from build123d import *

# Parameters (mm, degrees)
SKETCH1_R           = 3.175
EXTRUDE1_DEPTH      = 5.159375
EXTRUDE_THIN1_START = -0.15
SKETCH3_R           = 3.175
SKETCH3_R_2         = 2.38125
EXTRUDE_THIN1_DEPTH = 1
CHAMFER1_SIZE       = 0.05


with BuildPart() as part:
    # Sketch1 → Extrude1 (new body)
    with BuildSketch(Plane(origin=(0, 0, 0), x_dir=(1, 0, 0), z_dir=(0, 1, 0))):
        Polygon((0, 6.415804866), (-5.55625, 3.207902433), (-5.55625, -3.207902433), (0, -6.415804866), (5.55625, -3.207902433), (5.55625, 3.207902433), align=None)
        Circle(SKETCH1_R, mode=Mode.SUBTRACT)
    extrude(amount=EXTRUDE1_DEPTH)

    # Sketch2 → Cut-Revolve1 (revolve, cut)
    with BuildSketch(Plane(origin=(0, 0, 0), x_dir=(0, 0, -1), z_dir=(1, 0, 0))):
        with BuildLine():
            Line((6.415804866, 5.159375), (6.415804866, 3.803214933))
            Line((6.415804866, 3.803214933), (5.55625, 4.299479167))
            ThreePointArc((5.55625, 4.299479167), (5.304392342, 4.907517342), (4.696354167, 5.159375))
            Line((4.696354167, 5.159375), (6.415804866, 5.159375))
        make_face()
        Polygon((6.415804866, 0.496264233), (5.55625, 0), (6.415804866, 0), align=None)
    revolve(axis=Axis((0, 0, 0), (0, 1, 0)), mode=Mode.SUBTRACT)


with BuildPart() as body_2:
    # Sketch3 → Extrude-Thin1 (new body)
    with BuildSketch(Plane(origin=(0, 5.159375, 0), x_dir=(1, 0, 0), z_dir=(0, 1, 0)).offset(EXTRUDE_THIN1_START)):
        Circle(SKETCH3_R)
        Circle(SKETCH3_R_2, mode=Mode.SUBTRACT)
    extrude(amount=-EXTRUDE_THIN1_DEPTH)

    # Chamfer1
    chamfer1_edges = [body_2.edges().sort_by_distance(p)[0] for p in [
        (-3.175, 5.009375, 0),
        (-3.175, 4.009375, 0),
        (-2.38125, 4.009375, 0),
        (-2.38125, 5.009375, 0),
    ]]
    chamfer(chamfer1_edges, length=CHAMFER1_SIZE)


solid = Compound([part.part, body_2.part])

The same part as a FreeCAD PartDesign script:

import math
import FreeCAD as App
import Part
import Sketcher

V = App.Vector
Q = App.Units.Quantity


def edges_at(feature, points):
    """Names of the edges that pass closest to the given points."""
    edges = feature.Shape.Edges
    near = lambda p: min(range(len(edges)), key=lambda i: edges[i].distToShape(Part.Vertex(*p))[0])
    return sorted({f"Edge{near(p) + 1}" for p in points})

doc = App.newDocument("Part")
body = doc.addObject("PartDesign::Body", "Body")

sketch1 = body.newObject("Sketcher::SketchObject", "Sketch")
sketch1.AttachmentSupport = (doc.getObject("XZ_Plane"), [""])
sketch1.MapMode = "FlatFace"
sketch1.addGeometry(Part.LineSegment(V(0, -6.4, 0), V(-5.6, -3.2, 0)), False)
sketch1.addGeometry(Part.LineSegment(V(-5.6, -3.2, 0), V(-5.6, 3.2, 0)), False)
sketch1.addGeometry(Part.LineSegment(V(-5.6, 3.2, 0), V(0, 6.4, 0)), False)
sketch1.addGeometry(Part.LineSegment(V(0, 6.4, 0), V(5.6, 3.2, 0)), False)
sketch1.addGeometry(Part.LineSegment(V(5.6, 3.2, 0), V(5.6, -3.2, 0)), False)
sketch1.addGeometry(Part.LineSegment(V(5.6, -3.2, 0), V(0, -6.4, 0)), False)
sketch1.addGeometry(Part.Circle(V(0, 0, 0), V(0, 0, 1), 3.2), False)
sketch1.addConstraint(Sketcher.Constraint("Coincident", 0, 2, 1, 1))
sketch1.addConstraint(Sketcher.Constraint("Coincident", 1, 2, 2, 1))
sketch1.addConstraint(Sketcher.Constraint("Coincident", 2, 2, 3, 1))
sketch1.addConstraint(Sketcher.Constraint("Coincident", 3, 2, 4, 1))
sketch1.addConstraint(Sketcher.Constraint("Coincident", 4, 2, 5, 1))
sketch1.addConstraint(Sketcher.Constraint("Coincident", 5, 2, 0, 1))
sketch1.addConstraint(Sketcher.Constraint("Vertical", 1))
sketch1.addConstraint(Sketcher.Constraint("Vertical", 4))
sketch1.addConstraint(Sketcher.Constraint("Coincident", 6, 3, -1, 1))
sketch1.addConstraint(Sketcher.Constraint("Symmetric", 0, 2, 3, 2, -1, 1))
sketch1.addConstraint(Sketcher.Constraint("Symmetric", 2, 2, 5, 2, -1, 1))
sketch1.addConstraint(Sketcher.Constraint("PointOnObject", 2, 2, -2))
sketch1.addConstraint(Sketcher.Constraint("Parallel", 2, 5))
sketch1.addConstraint(Sketcher.Constraint("Horizontal", 1, 2, 3, 2))
sketch1.addConstraint(Sketcher.Constraint("Diameter", 6, Q("0.25 in")))
sketch1.addConstraint(Sketcher.Constraint("Angle", 0, Q("150 deg")))
sketch1.addConstraint(Sketcher.Constraint("DistanceX", 0, 2, -1, 1, Q("0.21875 in")))
sketch1.addConstraint(Sketcher.Constraint("DistanceY", 1, 1, 1, 2, 6.415805))
pad1 = body.newObject("PartDesign::Pad", "Pad")
pad1.Profile = sketch1
pad1.Length = Q("0.203125 in")
pad1.Reversed = True

sketch2 = body.newObject("Sketcher::SketchObject", "Sketch001")
sketch2.AttachmentSupport = (doc.getObject("YZ_Plane"), [""])
sketch2.MapMode = "FlatFace"
sketch2.addGeometry(Part.LineSegment(V(3.8, -6.42, 0), V(5.16, -6.42, 0)), False)
sketch2.addGeometry(Part.LineSegment(V(5.16, -6.42, 0), V(5.16, -4.7, 0)), False)
sketch2.addGeometry(Part.ArcOfCircle(Part.Circle(V(4.3, -4.7, 0), V(0, 0, 1), 0.86), math.radians(-90), math.radians(0)), False)
sketch2.addGeometry(Part.LineSegment(V(4.3, -5.56, 0), V(3.8, -6.42, 0)), False)
sketch2.addGeometry(Part.LineSegment(V(0.5, -6.42, 0), V(0, -5.56, 0)), False)
sketch2.addGeometry(Part.LineSegment(V(0, -5.56, 0), V(0, -6.42, 0)), False)
sketch2.addGeometry(Part.LineSegment(V(0, -6.42, 0), V(0.5, -6.42, 0)), False)
sketch2.addConstraint(Sketcher.Constraint("Coincident", 0, 2, 1, 1))
sketch2.addConstraint(Sketcher.Constraint("Tangent", 1, 2, 2, 2))
sketch2.addConstraint(Sketcher.Constraint("Coincident", 2, 1, 3, 1))
sketch2.addConstraint(Sketcher.Constraint("Coincident", 3, 2, 0, 1))
sketch2.addConstraint(Sketcher.Constraint("Coincident", 4, 2, 5, 1))
sketch2.addConstraint(Sketcher.Constraint("Coincident", 5, 2, 6, 1))
sketch2.addConstraint(Sketcher.Constraint("Coincident", 6, 2, 4, 1))
sketch2.addConstraint(Sketcher.Constraint("Horizontal", 0))
sketch2.addConstraint(Sketcher.Constraint("Vertical", 1))
sketch2.addConstraint(Sketcher.Constraint("Vertical", 5))
sketch2.addConstraint(Sketcher.Constraint("Horizontal", 6))
sketch2.addConstraint(Sketcher.Constraint("PointOnObject", 4, 2, -2))
sketch2.addConstraint(Sketcher.Constraint("Horizontal", 2, 1, 4, 2))
sketch2.addConstraint(Sketcher.Constraint("Horizontal", 3, 2, 5, 2))
sketch2.addConstraint(Sketcher.Constraint("Equal", 3, 4))
sketch2.addConstraint(Sketcher.Constraint("Angle", 3, Q("-120 deg")))
sketch2.addConstraint(Sketcher.Constraint("DistanceX", -1, 1, 0, 2, Q("0.203125 in")))
sketch2.addConstraint(Sketcher.Constraint("DistanceY", 2, 1, -1, 1, Q("0.21875 in")))
sketch2.addConstraint(Sketcher.Constraint("Radius", 2, 0.859896))
sketch2.addConstraint(Sketcher.Constraint("DistanceX", 0, 1, 0, 2, 1.35616))
sketch2.addConstraint(Sketcher.Constraint("DistanceY", 1, 1, 1, 2, 1.719451))
groove = body.newObject("PartDesign::Groove", "Groove")
groove.Profile = sketch2
groove.ReferenceAxis = (sketch2, ["H_Axis"])
groove.Angle = 360
body2 = doc.addObject("PartDesign::Body", "Body001")

sketch3 = body2.newObject("Sketcher::SketchObject", "Sketch002")
sketch3.AttachmentSupport = (doc.getObject("XZ_Plane001"), [""])
sketch3.MapMode = "FlatFace"
sketch3.AttachmentOffset = App.Placement(V(0, 0, -5.009375), App.Rotation())
sketch3.addGeometry(Part.Circle(V(0, 0, 0), V(0, 0, 1), 3.2), False)
sketch3.addGeometry(Part.Circle(V(0, 0, 0), V(0, 0, 1), 2.4), False)
sketch3.addConstraint(Sketcher.Constraint("Coincident", 0, 3, -1, 1))
sketch3.addConstraint(Sketcher.Constraint("Coincident", 1, 3, -1, 1))
sketch3.addConstraint(Sketcher.Constraint("Diameter", 0, Q("0.25 in")))
sketch3.addConstraint(Sketcher.Constraint("Diameter", 1, Q("0.1875 in")))
pad2 = body2.newObject("PartDesign::Pad", "Pad001")
pad2.Profile = sketch3
pad2.Length = 1
doc.recompute()

chamfer = body2.newObject("PartDesign::Chamfer", "Chamfer")
chamfer.Base = (pad2, edges_at(pad2, [
    (-3.175, 5.009, 0),
    (-3.175, 4.009, 0),
    (-2.381, 4.009, 0),
    (-2.381, 5.009, 0),
]))
chamfer.Size = 0.05

doc.recompute()
